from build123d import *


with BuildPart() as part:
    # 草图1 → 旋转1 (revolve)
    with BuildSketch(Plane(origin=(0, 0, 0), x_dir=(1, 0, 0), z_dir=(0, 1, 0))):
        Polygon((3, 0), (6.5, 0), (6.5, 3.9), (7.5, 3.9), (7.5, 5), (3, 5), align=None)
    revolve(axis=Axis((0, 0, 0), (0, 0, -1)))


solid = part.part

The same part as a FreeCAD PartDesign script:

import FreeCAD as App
import Part
import Sketcher
Q = App.Units.Quantity

doc = App.newDocument("Part")
body = doc.addObject("PartDesign::Body", "Body")

# Sketch on XZ plane
sketch1 = body.newObject("Sketcher::SketchObject", "Sketch")
sketch1.AttachmentSupport = (doc.getObject("XZ_Plane"), [""])
sketch1.MapMode = "FlatFace"
sketch1.addGeometry([
    Part.LineSegment(App.Vector(3, 0, 0), App.Vector(6.5, 0, 0)),  # 0
    Part.LineSegment(App.Vector(6.5, 0, 0), App.Vector(6.5, -3.9, 0)),  # 1
    Part.LineSegment(App.Vector(6.5, -3.9, 0), App.Vector(7.5, -3.9, 0)),  # 2
    Part.LineSegment(App.Vector(7.5, -3.9, 0), App.Vector(7.5, -5, 0)),  # 3
    Part.LineSegment(App.Vector(7.5, -5, 0), App.Vector(3, -5, 0)),  # 4
    Part.LineSegment(App.Vector(3, -5, 0), App.Vector(3, 0, 0)),  # 5
], False)
sketch1.addConstraint([
    Sketcher.Constraint("Coincident", 0, 2, 1, 1),
    Sketcher.Constraint("Coincident", 1, 2, 2, 1),
    Sketcher.Constraint("Coincident", 2, 2, 3, 1),
    Sketcher.Constraint("Coincident", 3, 2, 4, 1),
    Sketcher.Constraint("Coincident", 4, 2, 5, 1),
    Sketcher.Constraint("Coincident", 5, 2, 0, 1),
    Sketcher.Constraint("Horizontal", 0),
    Sketcher.Constraint("Vertical", 1),
    Sketcher.Constraint("Horizontal", 2),
    Sketcher.Constraint("Vertical", 3),
    Sketcher.Constraint("Horizontal", 4),
    Sketcher.Constraint("Vertical", 5),
    Sketcher.Constraint("PointOnObject", 0, 2, -1),
    Sketcher.Constraint("DistanceX", 2, 1, 2, 2, Q("1 mm")),
    Sketcher.Constraint("DistanceY", 5, 1, 5, 2, Q("5 mm")),
    Sketcher.Constraint("DistanceX", 0, 1, 0, 2, Q("3.5 mm")),
    Sketcher.Constraint("DistanceY", 1, 2, 1, 1, Q("3.9 mm")),
    Sketcher.Constraint("DistanceX", -1, 1, 4, 2, Q("3 mm")),
])
revolution = body.newObject("PartDesign::Revolution", "Revolution")
revolution.Profile = sketch1
revolution.ReferenceAxis = (sketch1, ["V_Axis"])
revolution.Angle = 360

doc.recompute()
